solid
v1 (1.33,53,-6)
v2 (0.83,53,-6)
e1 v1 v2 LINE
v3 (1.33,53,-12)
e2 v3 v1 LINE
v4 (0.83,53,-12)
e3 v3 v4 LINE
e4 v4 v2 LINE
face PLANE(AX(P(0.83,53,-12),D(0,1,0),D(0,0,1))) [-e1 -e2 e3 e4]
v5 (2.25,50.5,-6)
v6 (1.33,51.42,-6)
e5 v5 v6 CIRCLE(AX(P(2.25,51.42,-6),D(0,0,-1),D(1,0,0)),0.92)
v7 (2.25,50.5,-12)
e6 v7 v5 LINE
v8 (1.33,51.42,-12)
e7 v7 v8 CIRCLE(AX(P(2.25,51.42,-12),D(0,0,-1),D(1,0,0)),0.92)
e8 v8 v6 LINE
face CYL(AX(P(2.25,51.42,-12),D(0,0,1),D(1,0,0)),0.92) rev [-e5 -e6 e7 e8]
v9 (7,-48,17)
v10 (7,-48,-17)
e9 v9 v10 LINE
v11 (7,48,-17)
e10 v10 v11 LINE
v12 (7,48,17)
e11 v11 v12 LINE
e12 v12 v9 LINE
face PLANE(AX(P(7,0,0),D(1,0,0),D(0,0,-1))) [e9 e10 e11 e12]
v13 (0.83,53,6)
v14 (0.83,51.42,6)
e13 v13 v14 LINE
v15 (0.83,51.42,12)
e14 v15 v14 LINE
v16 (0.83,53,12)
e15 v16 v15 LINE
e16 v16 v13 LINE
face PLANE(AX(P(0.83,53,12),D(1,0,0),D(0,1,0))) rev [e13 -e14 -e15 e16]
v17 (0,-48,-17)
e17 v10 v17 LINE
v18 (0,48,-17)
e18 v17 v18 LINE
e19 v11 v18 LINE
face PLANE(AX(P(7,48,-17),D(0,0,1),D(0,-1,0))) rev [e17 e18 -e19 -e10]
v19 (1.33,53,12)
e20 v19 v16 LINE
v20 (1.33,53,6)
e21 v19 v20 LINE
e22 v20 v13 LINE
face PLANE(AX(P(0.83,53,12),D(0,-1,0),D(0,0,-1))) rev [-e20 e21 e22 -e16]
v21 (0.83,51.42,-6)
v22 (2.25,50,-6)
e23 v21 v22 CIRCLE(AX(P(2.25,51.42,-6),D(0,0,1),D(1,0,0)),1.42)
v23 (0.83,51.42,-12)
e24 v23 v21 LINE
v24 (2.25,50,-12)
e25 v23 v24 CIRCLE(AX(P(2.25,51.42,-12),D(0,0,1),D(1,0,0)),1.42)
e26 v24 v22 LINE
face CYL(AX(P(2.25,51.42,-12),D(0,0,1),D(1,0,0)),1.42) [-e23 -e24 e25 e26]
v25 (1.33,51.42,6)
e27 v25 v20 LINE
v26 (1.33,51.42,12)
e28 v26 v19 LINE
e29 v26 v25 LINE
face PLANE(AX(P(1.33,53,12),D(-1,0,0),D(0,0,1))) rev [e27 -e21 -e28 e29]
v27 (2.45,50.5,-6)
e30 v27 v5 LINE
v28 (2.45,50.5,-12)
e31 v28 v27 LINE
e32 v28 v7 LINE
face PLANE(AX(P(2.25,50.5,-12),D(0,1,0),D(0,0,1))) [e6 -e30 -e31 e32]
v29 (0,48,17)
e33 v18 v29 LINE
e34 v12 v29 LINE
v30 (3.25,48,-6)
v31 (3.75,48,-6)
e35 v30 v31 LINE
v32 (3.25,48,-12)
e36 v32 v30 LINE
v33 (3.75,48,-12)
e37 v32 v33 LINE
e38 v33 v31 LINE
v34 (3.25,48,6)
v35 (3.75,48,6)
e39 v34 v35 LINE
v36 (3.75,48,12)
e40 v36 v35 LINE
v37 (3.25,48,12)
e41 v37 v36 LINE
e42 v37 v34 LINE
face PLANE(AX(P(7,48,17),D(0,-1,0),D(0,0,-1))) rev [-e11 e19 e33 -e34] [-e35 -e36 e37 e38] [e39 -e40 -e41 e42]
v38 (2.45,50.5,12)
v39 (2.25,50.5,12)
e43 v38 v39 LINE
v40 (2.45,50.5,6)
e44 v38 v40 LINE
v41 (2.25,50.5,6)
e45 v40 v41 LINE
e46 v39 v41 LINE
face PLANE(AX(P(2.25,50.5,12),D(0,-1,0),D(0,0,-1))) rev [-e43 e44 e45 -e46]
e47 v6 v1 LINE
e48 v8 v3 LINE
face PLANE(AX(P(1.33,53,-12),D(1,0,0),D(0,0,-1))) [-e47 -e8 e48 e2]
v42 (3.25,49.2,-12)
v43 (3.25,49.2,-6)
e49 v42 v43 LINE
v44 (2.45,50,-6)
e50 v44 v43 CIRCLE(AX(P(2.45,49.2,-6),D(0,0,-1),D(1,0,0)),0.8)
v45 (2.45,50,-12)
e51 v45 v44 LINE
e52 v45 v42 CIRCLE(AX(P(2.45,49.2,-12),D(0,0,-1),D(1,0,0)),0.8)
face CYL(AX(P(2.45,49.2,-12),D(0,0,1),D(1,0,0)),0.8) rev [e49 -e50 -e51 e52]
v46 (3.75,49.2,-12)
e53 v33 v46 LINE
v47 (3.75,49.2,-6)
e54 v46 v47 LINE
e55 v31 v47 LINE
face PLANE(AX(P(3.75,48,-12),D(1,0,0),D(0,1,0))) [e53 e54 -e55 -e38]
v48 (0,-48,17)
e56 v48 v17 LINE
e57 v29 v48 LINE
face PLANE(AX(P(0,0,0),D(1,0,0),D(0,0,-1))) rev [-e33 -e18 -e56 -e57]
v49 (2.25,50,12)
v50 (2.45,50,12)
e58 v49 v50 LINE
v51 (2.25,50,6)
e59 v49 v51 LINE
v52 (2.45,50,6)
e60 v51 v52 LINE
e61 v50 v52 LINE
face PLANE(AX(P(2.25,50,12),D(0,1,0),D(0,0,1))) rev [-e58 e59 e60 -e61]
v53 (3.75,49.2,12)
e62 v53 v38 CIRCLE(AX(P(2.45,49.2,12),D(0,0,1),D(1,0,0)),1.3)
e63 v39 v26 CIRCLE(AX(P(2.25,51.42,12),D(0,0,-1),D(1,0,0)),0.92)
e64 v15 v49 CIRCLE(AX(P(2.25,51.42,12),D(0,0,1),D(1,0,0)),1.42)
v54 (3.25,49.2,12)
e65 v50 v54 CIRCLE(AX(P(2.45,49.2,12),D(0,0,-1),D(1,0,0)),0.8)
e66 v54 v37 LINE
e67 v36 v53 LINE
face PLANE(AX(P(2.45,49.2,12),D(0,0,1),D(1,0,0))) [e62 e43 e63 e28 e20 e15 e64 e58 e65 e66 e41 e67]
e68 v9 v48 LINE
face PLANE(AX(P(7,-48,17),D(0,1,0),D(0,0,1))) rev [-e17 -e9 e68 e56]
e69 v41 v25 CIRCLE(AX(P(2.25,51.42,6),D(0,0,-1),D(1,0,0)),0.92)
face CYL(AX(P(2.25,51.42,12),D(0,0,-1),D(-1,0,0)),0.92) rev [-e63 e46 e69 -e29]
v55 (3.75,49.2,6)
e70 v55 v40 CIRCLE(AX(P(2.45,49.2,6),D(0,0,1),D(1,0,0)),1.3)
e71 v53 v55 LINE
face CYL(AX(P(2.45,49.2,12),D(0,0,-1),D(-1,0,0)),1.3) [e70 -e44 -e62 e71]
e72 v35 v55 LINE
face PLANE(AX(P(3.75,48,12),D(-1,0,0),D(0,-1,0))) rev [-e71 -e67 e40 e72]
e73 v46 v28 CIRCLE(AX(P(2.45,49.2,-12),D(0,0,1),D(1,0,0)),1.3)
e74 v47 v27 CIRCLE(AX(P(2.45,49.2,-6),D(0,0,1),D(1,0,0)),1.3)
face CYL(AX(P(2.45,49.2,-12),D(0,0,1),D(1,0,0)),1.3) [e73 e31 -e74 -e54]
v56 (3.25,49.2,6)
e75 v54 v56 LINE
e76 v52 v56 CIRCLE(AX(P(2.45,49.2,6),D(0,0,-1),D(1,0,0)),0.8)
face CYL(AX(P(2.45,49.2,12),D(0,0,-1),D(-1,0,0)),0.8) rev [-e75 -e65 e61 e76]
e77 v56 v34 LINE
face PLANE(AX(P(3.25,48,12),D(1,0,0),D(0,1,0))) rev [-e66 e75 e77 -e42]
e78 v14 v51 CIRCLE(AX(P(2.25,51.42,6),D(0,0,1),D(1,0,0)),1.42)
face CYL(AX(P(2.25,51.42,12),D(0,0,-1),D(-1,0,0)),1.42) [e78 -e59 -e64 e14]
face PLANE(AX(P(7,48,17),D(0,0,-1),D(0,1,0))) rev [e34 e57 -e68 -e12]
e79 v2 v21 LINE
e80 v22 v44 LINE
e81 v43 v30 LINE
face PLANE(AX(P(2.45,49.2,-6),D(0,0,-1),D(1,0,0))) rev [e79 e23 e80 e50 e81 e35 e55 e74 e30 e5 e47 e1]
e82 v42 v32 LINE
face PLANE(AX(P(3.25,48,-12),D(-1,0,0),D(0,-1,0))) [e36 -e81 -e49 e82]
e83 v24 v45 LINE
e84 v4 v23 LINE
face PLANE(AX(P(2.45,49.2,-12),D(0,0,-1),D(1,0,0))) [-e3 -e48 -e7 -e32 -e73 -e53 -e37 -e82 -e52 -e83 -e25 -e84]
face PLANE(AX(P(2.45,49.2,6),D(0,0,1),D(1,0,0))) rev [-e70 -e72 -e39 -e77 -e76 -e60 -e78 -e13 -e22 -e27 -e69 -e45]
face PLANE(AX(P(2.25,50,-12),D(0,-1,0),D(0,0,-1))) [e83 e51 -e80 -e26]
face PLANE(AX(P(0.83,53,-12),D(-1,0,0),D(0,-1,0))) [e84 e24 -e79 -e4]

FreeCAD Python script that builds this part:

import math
import FreeCAD as App
import Part
import Sketcher
from FreeCAD import Vector
Q = App.Units.Quantity

doc = App.newDocument("Part")
params = doc.addObject("Spreadsheet::Sheet", "Params")
for row, (alias, value) in enumerate([
    ("sketch1_width", "96 mm"),
    ("sketch1_height", "34 mm"),
    ("pad1_length", "7 mm"),
    ("sketch2_radius", "1.3 mm"),
    ("sketch2_radius2", "0.8 mm"),
    ("sketch2_radius3", "0.92 mm"),
    ("sketch2_width", "0.2 mm"),
    ("sketch2_height", "1.2 mm"),
    ("pad2_length", "6 mm"),
], start=1):
    params.set(f"A{row}", alias)
    params.set(f"B{row}", "=" + value)
    params.setAlias(f"B{row}", alias)

body = doc.addObject("PartDesign::Body", "Body")

sketch1 = body.newObject("Sketcher::SketchObject", "Sketch")
sketch1.AttachmentSupport = (doc.getObject("YZ_Plane"), [""])
sketch1.MapMode = "FlatFace"
sketch1.addGeometry([
    Part.LineSegment(Vector(48, 17, 0), Vector(-48, 17, 0)),
    Part.LineSegment(Vector(-48, 17, 0), Vector(-48, -17, 0)),
    Part.LineSegment(Vector(-48, -17, 0), Vector(48, -17, 0)),
    Part.LineSegment(Vector(48, -17, 0), Vector(48, 17, 0)),
], False)
sketch1.addConstraint([
    Sketcher.Constraint("Coincident", 0, 2, 1, 1),
    Sketcher.Constraint("Coincident", 1, 2, 2, 1),
    Sketcher.Constraint("Coincident", 2, 2, 3, 1),
    Sketcher.Constraint("Coincident", 3, 2, 0, 1),
    Sketcher.Constraint("Horizontal", 0),
    Sketcher.Constraint("Vertical", 1),
    Sketcher.Constraint("Horizontal", 2),
    Sketcher.Constraint("Vertical", 3),
    Sketcher.Constraint("Symmetric", 0, 2, 2, 2, -1, 1),
    Sketcher.Constraint("DistanceX", 0, 2, 0, 1, Q("96 mm")),
    Sketcher.Constraint("DistanceY", 1, 2, 1, 1, Q("34 mm")),
])
sketch1.setExpression("Constraints[9]", "Params.sketch1_width")
sketch1.setExpression("Constraints[10]", "Params.sketch1_height")
pad1 = body.newObject("PartDesign::Pad", "Pad")
pad1.Profile = sketch1
pad1.setExpression("Length", "Params.pad1_length")

sketch2 = body.newObject("Sketcher::SketchObject", "Sketch001")
sketch2.AttachmentSupport = (doc.getObject("XY_Plane"), [""])
sketch2.MapMode = "FlatFace"
sketch2.AttachmentOffset = App.Placement(Vector(0, 0, 9), App.Rotation())
sketch2.addGeometry([
    Part.LineSegment(Vector(3.25, 49.2, 0), Vector(3.25, 48, 0)),
    Part.LineSegment(Vector(3.25, 48, 0), Vector(3.75, 48, 0)),
    Part.LineSegment(Vector(3.75, 48, 0), Vector(3.75, 49.2, 0)),
    Part.ArcOfCircle(Part.Circle(Vector(2.45, 49.2, 0), Vector(0, 0, 1), 1.3), math.radians(0), math.radians(90)),
    Part.LineSegment(Vector(2.45, 50.5, 0), Vector(2.25, 50.5, 0)),
    Part.ArcOfCircle(Part.Circle(Vector(2.25, 51.42, 0), Vector(0, 0, 1), 0.92), math.radians(180), math.radians(270)),
    Part.LineSegment(Vector(1.33, 51.42, 0), Vector(1.33, 53, 0)),
    Part.LineSegment(Vector(1.33, 53, 0), Vector(0.83, 53, 0)),
    Part.LineSegment(Vector(0.83, 53, 0), Vector(0.83, 51.42, 0)),
    Part.ArcOfCircle(Part.Circle(Vector(2.25, 51.42, 0), Vector(0, 0, 1), 1.42), math.radians(-180), math.radians(-90)),
    Part.LineSegment(Vector(2.25, 50, 0), Vector(2.45, 50, 0)),
    Part.ArcOfCircle(Part.Circle(Vector(2.45, 49.2, 0), Vector(0, 0, 1), 0.8), math.radians(0), math.radians(90)),
], False)
sketch2.addConstraint([
    Sketcher.Constraint("Coincident", 0, 2, 1, 1),
    Sketcher.Constraint("Coincident", 1, 2, 2, 1),
    Sketcher.Constraint("Tangent", 2, 2, 3, 1),
    Sketcher.Constraint("Tangent", 3, 2, 4, 1),
    Sketcher.Constraint("Tangent", 4, 2, 5, 2),
    Sketcher.Constraint("Tangent", 5, 1, 6, 1),
    Sketcher.Constraint("Coincident", 6, 2, 7, 1),
    Sketcher.Constraint("Coincident", 7, 2, 8, 1),
    Sketcher.Constraint("Tangent", 8, 2, 9, 1),
    Sketcher.Constraint("Tangent", 9, 2, 10, 1),
    Sketcher.Constraint("Tangent", 10, 2, 11, 2),
    Sketcher.Constraint("Tangent", 11, 1, 0, 1),
    Sketcher.Constraint("Vertical", 0),
    Sketcher.Constraint("Horizontal", 1),
    Sketcher.Constraint("Vertical", 2),
    Sketcher.Constraint("Horizontal", 4),
    Sketcher.Constraint("Vertical", 6),
    Sketcher.Constraint("Horizontal", 7),
    Sketcher.Constraint("Vertical", 8),
    Sketcher.Constraint("Horizontal", 10),
    Sketcher.Constraint("Coincident", 9, 3, 5, 3),
    Sketcher.Constraint("Coincident", 11, 3, 3, 3),
    Sketcher.Constraint("Radius", 3, Q("1.3 mm")),
    Sketcher.Constraint("Radius", 11, Q("0.8 mm")),
    Sketcher.Constraint("Radius", 5, Q("0.92 mm")),
    Sketcher.Constraint("DistanceX", 4, 2, 4, 1, Q("0.2 mm")),
    Sketcher.Constraint("DistanceY", 0, 2, 0, 1, Q("1.2 mm")),
    Sketcher.Constraint("DistanceY", -1, 1, 0, 2, Q("48 mm")),
    Sketcher.Constraint("DistanceY", -1, 1, 6, 2, Q("53 mm")),
    Sketcher.Constraint("DistanceX", -1, 1, 3, 3, Q("2.45 mm")),
])
sketch2.setExpression("Constraints[22]", "Params.sketch2_radius")
sketch2.setExpression("Constraints[23]", "Params.sketch2_radius2")
sketch2.setExpression("Constraints[24]", "Params.sketch2_radius3")
sketch2.setExpression("Constraints[25]", "Params.sketch2_width")
sketch2.setExpression("Constraints[26]", "Params.sketch2_height")
pad2 = body.newObject("PartDesign::Pad", "Pad001")
pad2.Profile = sketch2
pad2.setExpression("Length", "Params.pad2_length")
pad2.Midplane = True
doc.recompute()

mirrored = body.newObject("PartDesign::Mirrored", "Mirrored")
mirrored.Originals = [pad2]
mirrored.MirrorPlane = (doc.getObject("XY_Plane"), [""])
body.Tip = mirrored

doc.recompute()
